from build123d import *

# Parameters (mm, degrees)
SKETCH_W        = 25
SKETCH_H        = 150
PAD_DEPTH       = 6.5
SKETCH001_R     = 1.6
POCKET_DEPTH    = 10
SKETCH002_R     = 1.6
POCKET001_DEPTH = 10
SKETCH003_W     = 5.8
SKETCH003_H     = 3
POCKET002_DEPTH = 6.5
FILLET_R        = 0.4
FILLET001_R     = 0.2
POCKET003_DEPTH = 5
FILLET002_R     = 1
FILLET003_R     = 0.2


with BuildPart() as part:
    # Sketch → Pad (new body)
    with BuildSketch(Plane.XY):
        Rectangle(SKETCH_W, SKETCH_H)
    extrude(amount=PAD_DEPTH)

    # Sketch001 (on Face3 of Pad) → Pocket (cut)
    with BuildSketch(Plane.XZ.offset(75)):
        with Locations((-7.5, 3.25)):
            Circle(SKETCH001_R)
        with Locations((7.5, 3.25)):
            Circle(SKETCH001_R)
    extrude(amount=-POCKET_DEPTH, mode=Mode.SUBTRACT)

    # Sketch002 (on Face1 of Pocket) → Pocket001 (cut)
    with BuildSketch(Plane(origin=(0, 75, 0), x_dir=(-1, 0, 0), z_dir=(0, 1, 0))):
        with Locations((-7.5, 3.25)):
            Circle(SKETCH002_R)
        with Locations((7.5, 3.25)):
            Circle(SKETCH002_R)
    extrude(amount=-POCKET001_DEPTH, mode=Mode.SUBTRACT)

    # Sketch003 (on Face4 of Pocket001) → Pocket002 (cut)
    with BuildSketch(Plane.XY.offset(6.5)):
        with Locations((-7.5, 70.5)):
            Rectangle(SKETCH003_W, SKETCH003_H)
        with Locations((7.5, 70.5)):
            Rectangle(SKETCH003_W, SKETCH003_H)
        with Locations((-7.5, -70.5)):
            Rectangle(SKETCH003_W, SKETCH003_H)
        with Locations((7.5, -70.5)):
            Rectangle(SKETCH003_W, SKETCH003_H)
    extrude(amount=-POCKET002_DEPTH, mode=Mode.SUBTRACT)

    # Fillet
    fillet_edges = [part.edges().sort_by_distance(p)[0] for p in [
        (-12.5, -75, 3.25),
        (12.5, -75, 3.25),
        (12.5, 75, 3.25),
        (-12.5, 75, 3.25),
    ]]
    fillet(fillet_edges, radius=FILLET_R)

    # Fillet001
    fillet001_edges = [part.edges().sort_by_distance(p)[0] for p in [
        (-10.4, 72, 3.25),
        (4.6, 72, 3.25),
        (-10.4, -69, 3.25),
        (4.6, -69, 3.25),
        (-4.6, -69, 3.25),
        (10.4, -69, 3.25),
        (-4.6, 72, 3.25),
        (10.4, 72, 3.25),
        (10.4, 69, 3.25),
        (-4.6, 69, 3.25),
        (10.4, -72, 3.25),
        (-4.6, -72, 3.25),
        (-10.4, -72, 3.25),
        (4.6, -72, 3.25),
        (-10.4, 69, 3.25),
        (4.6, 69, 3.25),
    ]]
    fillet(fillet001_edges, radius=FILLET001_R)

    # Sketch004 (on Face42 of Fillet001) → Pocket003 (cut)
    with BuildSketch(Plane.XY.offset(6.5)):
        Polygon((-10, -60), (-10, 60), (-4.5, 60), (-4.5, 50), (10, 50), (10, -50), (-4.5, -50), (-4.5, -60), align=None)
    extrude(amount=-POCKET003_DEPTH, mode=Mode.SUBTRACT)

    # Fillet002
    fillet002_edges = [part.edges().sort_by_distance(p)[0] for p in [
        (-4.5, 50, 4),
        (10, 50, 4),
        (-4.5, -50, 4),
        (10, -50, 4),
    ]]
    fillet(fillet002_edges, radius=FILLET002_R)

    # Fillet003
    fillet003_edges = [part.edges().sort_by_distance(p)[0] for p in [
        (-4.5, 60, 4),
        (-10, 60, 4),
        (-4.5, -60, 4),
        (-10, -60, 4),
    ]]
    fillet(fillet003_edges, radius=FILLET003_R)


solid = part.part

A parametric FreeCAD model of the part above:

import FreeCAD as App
import Part
import Sketcher

V = App.Vector
Q = App.Units.Quantity


def edges_at(feature, points):
    """Names of the edges that pass closest to the given points."""
    edges = feature.Shape.Edges
    near = lambda p: min(range(len(edges)), key=lambda i: edges[i].distToShape(Part.Vertex(*p))[0])
    return sorted({f"Edge{near(p) + 1}" for p in points})


def add_polygon(sketch, points):
    """Adds a closed chain of lines whose ends are joined by coincident constraints."""
    first, n = sketch.GeometryCount, len(points)
    for a, b in zip(points, points[1:] + points[:1]):
        sketch.addGeometry(Part.LineSegment(App.Vector(*a, 0), App.Vector(*b, 0)), False)
    for i in range(n):
        sketch.addConstraint(Sketcher.Constraint("Coincident", first + i, 2, first + (i + 1) % n, 1))

doc = App.newDocument("Part")
body = doc.addObject("PartDesign::Body", "Body")

# Sketch on XY plane
sketch1 = body.newObject("Sketcher::SketchObject", "Sketch")
sketch1.AttachmentSupport = (doc.getObject("XY_Plane"), [""])
sketch1.MapMode = "FlatFace"
add_polygon(sketch1, [(-12, 75), (-12, -75), (12, -75), (12, 75)])  # lines 0-3
sketch1.addConstraint([
    Sketcher.Constraint("Vertical", 0),
    Sketcher.Constraint("Horizontal", 1),
    Sketcher.Constraint("Vertical", 2),
    Sketcher.Constraint("Horizontal", 3),
    Sketcher.Constraint("Symmetric", 0, 2, 2, 2, -1, 1),
    Sketcher.Constraint("DistanceX", 1, 1, 1, 2, Q("25 mm")),
    Sketcher.Constraint("DistanceY", 0, 2, 0, 1, Q("150 mm")),
])
pad1 = body.newObject("PartDesign::Pad", "Pad")
pad1.Profile = sketch1
pad1.Length = 6.5

# Sketch on XZ plane
sketch2 = body.newObject("Sketcher::SketchObject", "Sketch001")
sketch2.AttachmentSupport = (doc.getObject("XZ_Plane"), [""])
sketch2.MapMode = "FlatFace"
sketch2.AttachmentOffset = App.Placement(V(0, 0, 75), App.Rotation())
sketch2.addGeometry([
    Part.Circle(V(-7.5, 3.2, 0), V(0, 0, 1), 1.6),
    Part.Circle(V(7.5, 3.2, 0), V(0, 0, 1), 1.6),
], False)
sketch2.addConstraint([
    Sketcher.Constraint("Equal", 0, 1),
    Sketcher.Constraint("Symmetric", 0, 3, 1, 3, -2),
    Sketcher.Constraint("Diameter", 0, Q("3.2 mm")),
    Sketcher.Constraint("DistanceX", 0, 3, 1, 3, Q("15 mm")),
    Sketcher.Constraint("DistanceY", -1, 1, 0, 3, Q("3.25 mm")),
])
pocket1 = body.newObject("PartDesign::Pocket", "Pocket")
pocket1.Profile = sketch2
pocket1.Length = 10

# Sketch on XZ plane
sketch3 = body.newObject("Sketcher::SketchObject", "Sketch002")
sketch3.AttachmentSupport = (doc.getObject("XZ_Plane"), [""])
sketch3.MapMode = "FlatFace"
sketch3.AttachmentOffset = App.Placement(V(0, 0, -75), App.Rotation())
sketch3.addGeometry([
    Part.Circle(V(7.5, 3.2, 0), V(0, 0, 1), 1.6),
    Part.Circle(V(-7.5, 3.2, 0), V(0, 0, 1), 1.6),
], False)
sketch3.addConstraint([
    Sketcher.Constraint("Equal", 0, 1),
    Sketcher.Constraint("Symmetric", 0, 3, 1, 3, -2),
    Sketcher.Constraint("Diameter", 0, Q("3.2 mm")),
    Sketcher.Constraint("DistanceX", 1, 3, 0, 3, Q("15 mm")),
    Sketcher.Constraint("DistanceY", -1, 1, 0, 3, Q("3.25 mm")),
])
pocket2 = body.newObject("PartDesign::Pocket", "Pocket001")
pocket2.Profile = sketch3
pocket2.Length = 10
pocket2.Reversed = True

# Sketch on XY plane
sketch4 = body.newObject("Sketcher::SketchObject", "Sketch003")
sketch4.AttachmentSupport = (doc.getObject("XY_Plane"), [""])
sketch4.MapMode = "FlatFace"
sketch4.AttachmentOffset = App.Placement(V(0, 0, 6.5), App.Rotation())
add_polygon(sketch4, [(-10.4, 72), (-10.4, 69), (-4.6, 69), (-4.6, 72)])  # lines 0-3
add_polygon(sketch4, [(4.6, 72), (4.6, 69), (10.4, 69), (10.4, 72)])  # lines 4-7
add_polygon(sketch4, [(-10.4, -69), (-10.4, -72), (-4.6, -72), (-4.6, -69)])  # lines 8-11
add_polygon(sketch4, [(4.6, -69), (4.6, -72), (10.4, -72), (10.4, -69)])  # lines 12-15
sketch4.addConstraint([
    Sketcher.Constraint("Vertical", 0),
    Sketcher.Constraint("Horizontal", 1),
    Sketcher.Constraint("Vertical", 2),
    Sketcher.Constraint("Horizontal", 3),
    Sketcher.Constraint("Vertical", 4),
    Sketcher.Constraint("Horizontal", 5),
    Sketcher.Constraint("Vertical", 6),
    Sketcher.Constraint("Horizontal", 7),
    Sketcher.Constraint("Vertical", 8),
    Sketcher.Constraint("Horizontal", 9),
    Sketcher.Constraint("Vertical", 10),
    Sketcher.Constraint("Horizontal", 11),
    Sketcher.Constraint("Vertical", 12),
    Sketcher.Constraint("Horizontal", 13),
    Sketcher.Constraint("Vertical", 14),
    Sketcher.Constraint("Horizontal", 15),
    Sketcher.Constraint("Symmetric", 6, 2, 8, 2, -1, 1),
    Sketcher.Constraint("Symmetric", 4, 2, 10, 2, -1, 1),
    Sketcher.Constraint("Symmetric", 2, 2, 12, 2, -1, 1),
    Sketcher.Constraint("Symmetric", 0, 2, 14, 2, -1, 1),
    Sketcher.Constraint("Symmetric", 1, 2, 4, 2, -2),
    Sketcher.Constraint("Symmetric", 3, 2, 6, 2, -2),
    Sketcher.Constraint("DistanceY", 0, 2, 0, 1, Q("3 mm")),
    Sketcher.Constraint("DistanceX", 1, 1, 1, 2, Q("5.8 mm")),
    Sketcher.Constraint("DistanceY", -1, 1, 0, 2, Q("69 mm")),
    Sketcher.Constraint("DistanceX", 0, 2, 4, 2, Q("15 mm")),
])
pocket3 = body.newObject("PartDesign::Pocket", "Pocket002")
pocket3.Profile = sketch4
pocket3.Length = 6.5
doc.recompute()

fillet = body.newObject("PartDesign::Fillet", "Fillet")
fillet.Base = (pocket3, edges_at(pocket3, [
    (-12.5, -75, 3.25),
    (12.5, -75, 3.25),
    (12.5, 75, 3.25),
    (-12.5, 75, 3.25),
]))
fillet.Radius = 0.4
doc.recompute()

fillet2 = body.newObject("PartDesign::Fillet", "Fillet001")
fillet2.Base = (fillet, edges_at(fillet, [
    (-10.4, 72, 3.25),
    (4.6, 72, 3.25),
    (-10.4, -69, 3.25),
    (4.6, -69, 3.25),
    (-4.6, -69, 3.25),
    (10.4, -69, 3.25),
    (-4.6, 72, 3.25),
    (10.4, 72, 3.25),
    (10.4, 69, 3.25),
    (-4.6, 69, 3.25),
    (10.4, -72, 3.25),
    (-4.6, -72, 3.25),
    (-10.4, -72, 3.25),
    (4.6, -72, 3.25),
    (-10.4, 69, 3.25),
    (4.6, 69, 3.25),
]))
fillet2.Radius = 0.2

# Sketch on XY plane
sketch5 = body.newObject("Sketcher::SketchObject", "Sketch004")
sketch5.AttachmentSupport = (doc.getObject("XY_Plane"), [""])
sketch5.MapMode = "FlatFace"
sketch5.AttachmentOffset = App.Placement(V(0, 0, 6.5), App.Rotation())
add_polygon(sketch5, [(-10, 60), (-10, -60), (-4, -60), (-4, -50), (10, -50), (10, 50), (-4, 50), (-4, 60)])  # lines 0-7
sketch5.addConstraint([
    Sketcher.Constraint("Vertical", 0),
    Sketcher.Constraint("Horizontal", 1),
    Sketcher.Constraint("Vertical", 2),
    Sketcher.Constraint("Horizontal", 3),
    Sketcher.Constraint("Vertical", 4),
    Sketcher.Constraint("Horizontal", 5),
    Sketcher.Constraint("Vertical", 6),
    Sketcher.Constraint("Horizontal", 7),
    Sketcher.Constraint("Symmetric", 2, 2, 5, 2, -1),
    Sketcher.Constraint("Equal", 2, 6),
    Sketcher.Constraint("DistanceY", 0, 2, 0, 1, Q("120 mm")),
    Sketcher.Constraint("DistanceY", 2, 1, 2, 2, Q("10 mm")),
    Sketcher.Constraint("DistanceX", 1, 1, 1, 2, Q("5.5 mm")),
    Sketcher.Constraint("DistanceX", 3, 1, 3, 2, Q("14.5 mm")),
    Sketcher.Constraint("DistanceX", 0, 2, -1, 1, Q("10 mm")),
])
pocket4 = body.newObject("PartDesign::Pocket", "Pocket003")
pocket4.Profile = sketch5
pocket4.Length = 5
doc.recompute()

fillet3 = body.newObject("PartDesign::Fillet", "Fillet002")
fillet3.Base = (pocket4, edges_at(pocket4, [
    (-4.5, 50, 4),
    (10, 50, 4),
    (-4.5, -50, 4),
    (10, -50, 4),
]))
fillet3.Radius = 1
doc.recompute()

fillet4 = body.newObject("PartDesign::Fillet", "Fillet003")
fillet4.Base = (fillet3, edges_at(fillet3, [
    (-4.5, 60, 4),
    (-10, 60, 4),
    (-4.5, -60, 4),
    (-10, -60, 4),
]))
fillet4.Radius = 0.2

doc.recompute()
